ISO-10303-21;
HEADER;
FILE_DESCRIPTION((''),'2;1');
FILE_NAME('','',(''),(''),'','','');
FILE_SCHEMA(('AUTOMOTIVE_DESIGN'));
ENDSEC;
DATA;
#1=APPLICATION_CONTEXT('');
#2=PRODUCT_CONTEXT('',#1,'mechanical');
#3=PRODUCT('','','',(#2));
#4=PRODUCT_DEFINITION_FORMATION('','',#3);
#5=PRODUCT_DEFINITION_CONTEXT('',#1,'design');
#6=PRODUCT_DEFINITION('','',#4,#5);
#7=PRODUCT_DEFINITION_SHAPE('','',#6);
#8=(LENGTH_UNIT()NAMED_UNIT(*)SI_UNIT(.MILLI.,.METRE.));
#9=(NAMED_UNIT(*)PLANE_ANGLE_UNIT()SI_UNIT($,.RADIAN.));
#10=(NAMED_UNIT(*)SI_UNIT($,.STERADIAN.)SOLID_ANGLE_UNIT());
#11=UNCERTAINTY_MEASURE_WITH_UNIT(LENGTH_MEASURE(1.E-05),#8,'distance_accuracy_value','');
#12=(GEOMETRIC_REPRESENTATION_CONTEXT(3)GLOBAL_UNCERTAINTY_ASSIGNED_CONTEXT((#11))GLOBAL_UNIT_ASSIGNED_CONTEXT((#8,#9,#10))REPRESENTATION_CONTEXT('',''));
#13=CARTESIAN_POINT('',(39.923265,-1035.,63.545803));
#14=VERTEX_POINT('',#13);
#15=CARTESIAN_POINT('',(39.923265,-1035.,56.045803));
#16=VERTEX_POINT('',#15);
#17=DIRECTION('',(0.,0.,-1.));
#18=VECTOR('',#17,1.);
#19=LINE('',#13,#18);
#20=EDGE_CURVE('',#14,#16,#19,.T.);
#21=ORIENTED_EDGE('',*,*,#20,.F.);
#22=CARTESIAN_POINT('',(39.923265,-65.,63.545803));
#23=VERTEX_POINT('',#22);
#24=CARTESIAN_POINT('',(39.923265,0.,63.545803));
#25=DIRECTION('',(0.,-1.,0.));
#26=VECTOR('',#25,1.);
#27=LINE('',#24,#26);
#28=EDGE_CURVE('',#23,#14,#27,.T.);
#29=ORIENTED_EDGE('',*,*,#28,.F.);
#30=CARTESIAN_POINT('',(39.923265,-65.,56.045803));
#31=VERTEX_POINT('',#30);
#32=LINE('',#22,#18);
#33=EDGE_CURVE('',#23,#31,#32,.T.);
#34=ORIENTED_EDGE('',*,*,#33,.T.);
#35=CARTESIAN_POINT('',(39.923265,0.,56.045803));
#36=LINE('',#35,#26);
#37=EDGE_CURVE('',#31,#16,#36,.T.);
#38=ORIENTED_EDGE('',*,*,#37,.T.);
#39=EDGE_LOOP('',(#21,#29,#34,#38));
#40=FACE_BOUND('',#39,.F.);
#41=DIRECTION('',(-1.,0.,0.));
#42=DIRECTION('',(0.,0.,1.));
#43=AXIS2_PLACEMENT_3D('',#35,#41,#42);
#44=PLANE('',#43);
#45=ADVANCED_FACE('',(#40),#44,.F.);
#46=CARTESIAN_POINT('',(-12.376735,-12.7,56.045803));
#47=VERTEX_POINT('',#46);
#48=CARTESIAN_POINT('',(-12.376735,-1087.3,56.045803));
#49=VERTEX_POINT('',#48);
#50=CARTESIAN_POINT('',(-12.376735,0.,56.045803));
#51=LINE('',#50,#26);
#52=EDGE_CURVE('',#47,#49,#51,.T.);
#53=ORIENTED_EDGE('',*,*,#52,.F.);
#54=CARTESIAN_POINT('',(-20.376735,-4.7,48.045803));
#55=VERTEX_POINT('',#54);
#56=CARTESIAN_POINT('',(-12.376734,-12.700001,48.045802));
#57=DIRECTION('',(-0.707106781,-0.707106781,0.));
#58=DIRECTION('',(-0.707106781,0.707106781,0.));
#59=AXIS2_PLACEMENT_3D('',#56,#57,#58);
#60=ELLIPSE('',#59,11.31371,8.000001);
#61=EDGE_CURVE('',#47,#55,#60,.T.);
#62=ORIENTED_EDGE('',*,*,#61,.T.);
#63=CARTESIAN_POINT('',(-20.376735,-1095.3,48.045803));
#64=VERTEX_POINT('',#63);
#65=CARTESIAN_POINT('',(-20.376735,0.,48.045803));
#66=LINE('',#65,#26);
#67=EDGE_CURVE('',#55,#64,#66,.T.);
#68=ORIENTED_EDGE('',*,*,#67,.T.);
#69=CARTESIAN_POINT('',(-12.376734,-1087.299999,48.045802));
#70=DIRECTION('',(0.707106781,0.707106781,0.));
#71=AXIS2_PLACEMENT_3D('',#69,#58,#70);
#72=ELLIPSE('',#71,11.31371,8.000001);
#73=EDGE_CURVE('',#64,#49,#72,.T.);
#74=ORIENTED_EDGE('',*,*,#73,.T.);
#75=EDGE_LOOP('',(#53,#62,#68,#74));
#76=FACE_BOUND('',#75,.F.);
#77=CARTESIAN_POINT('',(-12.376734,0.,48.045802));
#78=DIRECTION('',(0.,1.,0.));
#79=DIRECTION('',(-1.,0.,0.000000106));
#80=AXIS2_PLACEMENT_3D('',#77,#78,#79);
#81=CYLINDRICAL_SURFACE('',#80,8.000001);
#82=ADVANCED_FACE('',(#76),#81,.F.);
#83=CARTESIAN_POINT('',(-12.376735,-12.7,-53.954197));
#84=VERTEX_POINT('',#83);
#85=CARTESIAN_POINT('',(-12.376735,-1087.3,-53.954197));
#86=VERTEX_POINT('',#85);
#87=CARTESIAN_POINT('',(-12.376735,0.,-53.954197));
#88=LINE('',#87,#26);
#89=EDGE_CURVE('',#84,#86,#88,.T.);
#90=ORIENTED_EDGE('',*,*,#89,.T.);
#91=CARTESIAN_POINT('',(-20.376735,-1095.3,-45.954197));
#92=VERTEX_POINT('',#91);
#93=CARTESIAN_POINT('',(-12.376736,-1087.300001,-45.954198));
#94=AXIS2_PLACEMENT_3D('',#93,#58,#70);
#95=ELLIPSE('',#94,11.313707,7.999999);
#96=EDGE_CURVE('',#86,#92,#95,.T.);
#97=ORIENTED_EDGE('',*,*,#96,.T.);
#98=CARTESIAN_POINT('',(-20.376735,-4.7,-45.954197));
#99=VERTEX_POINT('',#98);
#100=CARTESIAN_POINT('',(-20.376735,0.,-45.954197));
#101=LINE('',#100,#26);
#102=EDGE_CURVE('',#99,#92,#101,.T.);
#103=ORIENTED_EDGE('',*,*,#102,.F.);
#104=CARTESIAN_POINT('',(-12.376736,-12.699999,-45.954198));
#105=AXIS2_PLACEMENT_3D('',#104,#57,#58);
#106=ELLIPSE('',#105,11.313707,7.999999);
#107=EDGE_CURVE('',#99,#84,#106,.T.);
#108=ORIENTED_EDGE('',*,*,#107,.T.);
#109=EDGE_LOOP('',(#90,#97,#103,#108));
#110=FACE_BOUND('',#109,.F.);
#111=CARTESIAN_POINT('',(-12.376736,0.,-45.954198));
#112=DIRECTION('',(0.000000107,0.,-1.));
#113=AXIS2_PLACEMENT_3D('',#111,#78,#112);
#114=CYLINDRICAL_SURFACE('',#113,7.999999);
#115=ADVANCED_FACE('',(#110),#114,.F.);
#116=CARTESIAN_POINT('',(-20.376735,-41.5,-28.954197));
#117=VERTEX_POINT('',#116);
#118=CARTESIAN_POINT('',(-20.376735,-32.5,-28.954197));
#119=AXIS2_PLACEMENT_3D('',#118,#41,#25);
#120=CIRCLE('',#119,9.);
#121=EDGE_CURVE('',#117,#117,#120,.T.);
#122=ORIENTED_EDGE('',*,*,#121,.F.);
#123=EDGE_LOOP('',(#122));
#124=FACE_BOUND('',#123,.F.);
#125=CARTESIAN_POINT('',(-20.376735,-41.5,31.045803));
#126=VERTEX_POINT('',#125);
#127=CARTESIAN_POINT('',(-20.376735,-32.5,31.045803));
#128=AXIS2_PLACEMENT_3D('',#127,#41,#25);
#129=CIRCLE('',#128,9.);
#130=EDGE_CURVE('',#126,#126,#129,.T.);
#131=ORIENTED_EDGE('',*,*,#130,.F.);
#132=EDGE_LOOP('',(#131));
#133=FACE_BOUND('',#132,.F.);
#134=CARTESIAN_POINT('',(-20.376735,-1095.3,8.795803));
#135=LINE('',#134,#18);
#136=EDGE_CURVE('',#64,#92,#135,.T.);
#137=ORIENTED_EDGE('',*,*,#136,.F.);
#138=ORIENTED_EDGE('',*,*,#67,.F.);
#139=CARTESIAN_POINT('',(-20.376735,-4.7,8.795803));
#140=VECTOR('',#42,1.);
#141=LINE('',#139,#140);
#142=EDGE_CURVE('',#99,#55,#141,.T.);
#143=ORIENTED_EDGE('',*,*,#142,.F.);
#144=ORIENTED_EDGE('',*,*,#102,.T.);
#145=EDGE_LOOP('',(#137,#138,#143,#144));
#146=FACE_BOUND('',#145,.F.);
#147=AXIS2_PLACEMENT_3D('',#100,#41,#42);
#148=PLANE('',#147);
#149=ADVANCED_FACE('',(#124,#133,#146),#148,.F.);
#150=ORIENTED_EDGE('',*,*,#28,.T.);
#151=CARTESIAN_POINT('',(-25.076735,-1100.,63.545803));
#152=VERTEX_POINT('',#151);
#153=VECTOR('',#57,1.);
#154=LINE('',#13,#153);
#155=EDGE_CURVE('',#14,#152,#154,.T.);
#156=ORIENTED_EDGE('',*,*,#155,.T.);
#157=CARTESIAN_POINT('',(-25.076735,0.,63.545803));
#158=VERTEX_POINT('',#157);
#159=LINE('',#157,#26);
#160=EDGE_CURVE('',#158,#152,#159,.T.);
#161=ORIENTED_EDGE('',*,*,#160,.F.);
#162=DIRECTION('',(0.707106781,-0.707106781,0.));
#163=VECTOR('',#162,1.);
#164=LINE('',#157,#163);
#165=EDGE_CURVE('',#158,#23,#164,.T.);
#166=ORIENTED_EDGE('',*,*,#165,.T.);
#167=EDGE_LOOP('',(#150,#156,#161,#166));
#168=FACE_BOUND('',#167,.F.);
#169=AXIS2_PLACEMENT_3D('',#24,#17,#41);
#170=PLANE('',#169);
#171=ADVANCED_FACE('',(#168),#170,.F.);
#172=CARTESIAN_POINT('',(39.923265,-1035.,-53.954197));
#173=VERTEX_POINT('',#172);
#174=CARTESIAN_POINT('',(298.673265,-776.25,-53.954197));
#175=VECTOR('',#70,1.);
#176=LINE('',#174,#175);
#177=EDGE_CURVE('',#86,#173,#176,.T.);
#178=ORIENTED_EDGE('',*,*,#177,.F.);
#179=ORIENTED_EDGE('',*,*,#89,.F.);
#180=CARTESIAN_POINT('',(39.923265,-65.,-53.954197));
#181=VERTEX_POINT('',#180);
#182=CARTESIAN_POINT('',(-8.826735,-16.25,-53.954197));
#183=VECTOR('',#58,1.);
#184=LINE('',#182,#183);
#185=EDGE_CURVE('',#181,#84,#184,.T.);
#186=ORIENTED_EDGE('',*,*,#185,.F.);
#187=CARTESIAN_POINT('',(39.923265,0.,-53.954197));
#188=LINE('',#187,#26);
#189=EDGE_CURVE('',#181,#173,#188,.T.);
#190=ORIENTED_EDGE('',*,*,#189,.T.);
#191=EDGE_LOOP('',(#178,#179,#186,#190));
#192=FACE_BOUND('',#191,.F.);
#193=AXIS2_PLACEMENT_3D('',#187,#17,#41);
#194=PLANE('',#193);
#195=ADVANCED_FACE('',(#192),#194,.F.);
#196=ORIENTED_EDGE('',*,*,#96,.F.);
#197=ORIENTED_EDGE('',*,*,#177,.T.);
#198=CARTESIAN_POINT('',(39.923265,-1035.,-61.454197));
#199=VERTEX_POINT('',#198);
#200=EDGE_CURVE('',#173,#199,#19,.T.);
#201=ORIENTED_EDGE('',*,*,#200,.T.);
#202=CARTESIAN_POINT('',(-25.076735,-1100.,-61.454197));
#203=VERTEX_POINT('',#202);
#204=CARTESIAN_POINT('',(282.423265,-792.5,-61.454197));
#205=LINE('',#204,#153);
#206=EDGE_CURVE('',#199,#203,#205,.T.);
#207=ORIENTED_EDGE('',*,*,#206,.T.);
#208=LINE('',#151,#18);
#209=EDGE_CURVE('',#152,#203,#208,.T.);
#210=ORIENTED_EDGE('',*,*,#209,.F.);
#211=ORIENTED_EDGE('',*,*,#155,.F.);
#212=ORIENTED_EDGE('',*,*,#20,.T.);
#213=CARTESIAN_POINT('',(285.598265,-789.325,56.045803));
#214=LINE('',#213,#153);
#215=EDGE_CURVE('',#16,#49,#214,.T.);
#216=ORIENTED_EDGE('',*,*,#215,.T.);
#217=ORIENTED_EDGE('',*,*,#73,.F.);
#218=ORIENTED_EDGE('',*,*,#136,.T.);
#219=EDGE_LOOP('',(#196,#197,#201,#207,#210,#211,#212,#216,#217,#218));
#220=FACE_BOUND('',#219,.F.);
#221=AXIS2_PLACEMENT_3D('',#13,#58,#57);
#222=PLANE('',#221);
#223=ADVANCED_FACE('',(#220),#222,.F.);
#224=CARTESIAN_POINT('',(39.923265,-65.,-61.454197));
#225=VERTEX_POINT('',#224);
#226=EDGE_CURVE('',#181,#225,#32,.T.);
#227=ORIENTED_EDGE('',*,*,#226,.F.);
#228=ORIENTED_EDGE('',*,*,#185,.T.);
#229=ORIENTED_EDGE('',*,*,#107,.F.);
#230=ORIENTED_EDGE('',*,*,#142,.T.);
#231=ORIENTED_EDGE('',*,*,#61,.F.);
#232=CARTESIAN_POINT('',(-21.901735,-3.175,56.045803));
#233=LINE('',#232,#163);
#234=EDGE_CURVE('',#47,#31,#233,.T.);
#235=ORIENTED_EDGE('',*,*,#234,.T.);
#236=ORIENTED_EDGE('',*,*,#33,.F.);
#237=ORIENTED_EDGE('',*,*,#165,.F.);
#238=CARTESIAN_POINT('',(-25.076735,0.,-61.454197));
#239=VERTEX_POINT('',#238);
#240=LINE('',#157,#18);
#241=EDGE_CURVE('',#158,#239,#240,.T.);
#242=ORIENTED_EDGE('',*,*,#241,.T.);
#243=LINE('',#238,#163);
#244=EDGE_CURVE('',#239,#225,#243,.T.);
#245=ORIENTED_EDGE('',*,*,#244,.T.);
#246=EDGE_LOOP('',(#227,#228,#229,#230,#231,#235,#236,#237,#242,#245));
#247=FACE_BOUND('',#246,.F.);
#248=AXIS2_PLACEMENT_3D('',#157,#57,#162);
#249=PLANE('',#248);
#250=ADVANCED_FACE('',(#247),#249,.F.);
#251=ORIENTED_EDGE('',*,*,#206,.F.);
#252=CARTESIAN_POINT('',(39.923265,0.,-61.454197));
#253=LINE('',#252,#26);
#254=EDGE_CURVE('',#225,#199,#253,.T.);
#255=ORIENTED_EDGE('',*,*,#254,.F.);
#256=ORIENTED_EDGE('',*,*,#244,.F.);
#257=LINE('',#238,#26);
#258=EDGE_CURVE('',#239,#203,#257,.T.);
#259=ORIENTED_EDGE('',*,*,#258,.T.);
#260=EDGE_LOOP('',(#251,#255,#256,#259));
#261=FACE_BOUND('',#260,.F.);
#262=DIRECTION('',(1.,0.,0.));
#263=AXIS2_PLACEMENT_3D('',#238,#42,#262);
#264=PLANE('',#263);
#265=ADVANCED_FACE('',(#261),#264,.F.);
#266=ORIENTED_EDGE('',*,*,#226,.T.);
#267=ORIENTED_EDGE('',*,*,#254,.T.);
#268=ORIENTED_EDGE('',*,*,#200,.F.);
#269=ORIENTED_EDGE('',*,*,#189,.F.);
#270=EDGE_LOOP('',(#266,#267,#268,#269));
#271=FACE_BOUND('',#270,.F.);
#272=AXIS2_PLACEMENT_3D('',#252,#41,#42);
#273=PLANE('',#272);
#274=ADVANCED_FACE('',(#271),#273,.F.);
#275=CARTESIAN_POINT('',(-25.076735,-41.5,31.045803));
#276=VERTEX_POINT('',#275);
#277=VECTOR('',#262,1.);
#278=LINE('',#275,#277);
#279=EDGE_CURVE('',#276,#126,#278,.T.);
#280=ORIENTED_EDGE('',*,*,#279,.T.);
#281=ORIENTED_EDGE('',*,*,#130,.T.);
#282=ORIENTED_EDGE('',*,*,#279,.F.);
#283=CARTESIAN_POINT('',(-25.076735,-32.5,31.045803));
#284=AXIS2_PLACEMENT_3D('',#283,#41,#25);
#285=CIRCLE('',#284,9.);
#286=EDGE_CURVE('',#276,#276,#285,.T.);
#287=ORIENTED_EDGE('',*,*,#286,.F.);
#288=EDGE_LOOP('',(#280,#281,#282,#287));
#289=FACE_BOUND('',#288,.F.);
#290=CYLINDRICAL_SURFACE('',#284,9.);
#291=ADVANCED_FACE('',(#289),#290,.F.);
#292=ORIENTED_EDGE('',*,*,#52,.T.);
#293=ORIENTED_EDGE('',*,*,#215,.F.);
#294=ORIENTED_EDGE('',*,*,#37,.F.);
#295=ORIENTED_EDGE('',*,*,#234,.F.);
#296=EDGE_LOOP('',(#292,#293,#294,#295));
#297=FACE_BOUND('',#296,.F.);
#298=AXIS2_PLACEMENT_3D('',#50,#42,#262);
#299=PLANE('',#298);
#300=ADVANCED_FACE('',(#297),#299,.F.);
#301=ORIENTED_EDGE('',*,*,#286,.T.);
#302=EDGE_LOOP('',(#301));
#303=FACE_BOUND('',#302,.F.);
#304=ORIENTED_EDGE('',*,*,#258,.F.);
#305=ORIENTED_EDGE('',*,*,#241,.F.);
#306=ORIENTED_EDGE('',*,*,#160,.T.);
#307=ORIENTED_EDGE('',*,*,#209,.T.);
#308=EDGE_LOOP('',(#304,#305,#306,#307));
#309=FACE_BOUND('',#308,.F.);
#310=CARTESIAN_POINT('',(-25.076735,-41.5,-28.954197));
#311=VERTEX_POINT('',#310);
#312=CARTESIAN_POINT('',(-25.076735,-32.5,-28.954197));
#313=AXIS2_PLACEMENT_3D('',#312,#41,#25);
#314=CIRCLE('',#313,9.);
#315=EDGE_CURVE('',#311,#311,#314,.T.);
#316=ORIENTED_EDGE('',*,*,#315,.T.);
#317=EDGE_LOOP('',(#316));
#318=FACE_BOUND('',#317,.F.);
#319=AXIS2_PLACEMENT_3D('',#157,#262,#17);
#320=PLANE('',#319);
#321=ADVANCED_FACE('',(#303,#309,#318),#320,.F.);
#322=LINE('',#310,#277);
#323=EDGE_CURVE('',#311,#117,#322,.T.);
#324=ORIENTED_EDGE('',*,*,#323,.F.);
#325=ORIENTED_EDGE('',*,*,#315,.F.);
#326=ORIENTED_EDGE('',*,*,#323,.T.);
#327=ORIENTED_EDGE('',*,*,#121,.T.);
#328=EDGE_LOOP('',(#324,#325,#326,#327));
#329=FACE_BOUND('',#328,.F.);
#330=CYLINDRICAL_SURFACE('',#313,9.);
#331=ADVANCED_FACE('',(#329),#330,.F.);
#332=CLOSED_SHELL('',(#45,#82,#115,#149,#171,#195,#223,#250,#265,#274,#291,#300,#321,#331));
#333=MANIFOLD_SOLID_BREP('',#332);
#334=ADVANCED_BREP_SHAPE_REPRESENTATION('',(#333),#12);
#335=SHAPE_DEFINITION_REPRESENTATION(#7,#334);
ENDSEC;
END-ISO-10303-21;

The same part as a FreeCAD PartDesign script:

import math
import FreeCAD as App
import Part
import Sketcher

V = App.Vector
Q = App.Units.Quantity


def add_polygon(sketch, points):
    """Adds a closed chain of lines whose ends are joined by coincident constraints."""
    first, n = sketch.GeometryCount, len(points)
    for a, b in zip(points, points[1:] + points[:1]):
        sketch.addGeometry(Part.LineSegment(App.Vector(*a, 0), App.Vector(*b, 0)), False)
    for i in range(n):
        sketch.addConstraint(Sketcher.Constraint("Coincident", first + i, 2, first + (i + 1) % n, 1))

doc = App.newDocument("Part")
body = doc.addObject("PartDesign::Body", "Body")

# Sketch on XZ plane
sketch1 = doc.addObject("Sketcher::SketchObject", "Sketch")
body.addObject(sketch1)
sketch1.AttachmentSupport = (doc.XZ_Plane, [""])
sketch1.MapMode = "FlatFace"
sketch1.addGeometry(Part.LineSegment(V(-25.076735, 63.545803, 0), V(-25.076735, -61.454197, 0)), False)
sketch1.addGeometry(Part.LineSegment(V(-25.076735, -61.454197, 0), V(39.923265, -61.454197, 0)), False)
sketch1.addGeometry(Part.LineSegment(V(39.923265, -61.454197, 0), V(39.923265, -53.954197, 0)), False)
sketch1.addGeometry(Part.LineSegment(V(39.923265, -53.954197, 0), V(-12.376735, -53.954197, 0)), False)
sketch1.addGeometry(Part.ArcOfCircle(Part.Circle(V(-12.376736, -45.954198, 0), V(0, 0, 1), 7.999999), math.radians(179.999994), math.radians(270.000006)), False)
sketch1.addGeometry(Part.LineSegment(V(-20.376735, -45.954197, 0), V(-20.376735, 48.045803, 0)), False)
sketch1.addGeometry(Part.ArcOfCircle(Part.Circle(V(-12.376734, 48.045802, 0), V(0, 0, 1), 8.000001), math.radians(90.000006), math.radians(179.999994)), False)
sketch1.addGeometry(Part.LineSegment(V(-12.376735, 56.045803, 0), V(39.923265, 56.045803, 0)), False)
sketch1.addGeometry(Part.LineSegment(V(39.923265, 56.045803, 0), V(39.923265, 63.545803, 0)), False)
sketch1.addGeometry(Part.LineSegment(V(39.923265, 63.545803, 0), V(-25.076735, 63.545803, 0)), False)
sketch1.addConstraint(Sketcher.Constraint("Coincident", 0, 2, 1, 1))
sketch1.addConstraint(Sketcher.Constraint("Coincident", 1, 2, 2, 1))
sketch1.addConstraint(Sketcher.Constraint("Coincident", 2, 2, 3, 1))
sketch1.addConstraint(Sketcher.Constraint("Tangent", 3, 2, 4, 2))
sketch1.addConstraint(Sketcher.Constraint("Tangent", 4, 1, 5, 1))
sketch1.addConstraint(Sketcher.Constraint("Tangent", 5, 2, 6, 2))
sketch1.addConstraint(Sketcher.Constraint("Tangent", 6, 1, 7, 1))
sketch1.addConstraint(Sketcher.Constraint("Coincident", 7, 2, 8, 1))
sketch1.addConstraint(Sketcher.Constraint("Coincident", 8, 2, 9, 1))
sketch1.addConstraint(Sketcher.Constraint("Coincident", 9, 2, 0, 1))
sketch1.addConstraint(Sketcher.Constraint("Vertical", 0))
sketch1.addConstraint(Sketcher.Constraint("Horizontal", 1))
sketch1.addConstraint(Sketcher.Constraint("Vertical", 2))
sketch1.addConstraint(Sketcher.Constraint("Horizontal", 3))
sketch1.addConstraint(Sketcher.Constraint("Vertical", 5))
sketch1.addConstraint(Sketcher.Constraint("Horizontal", 7))
sketch1.addConstraint(Sketcher.Constraint("Vertical", 8))
sketch1.addConstraint(Sketcher.Constraint("Horizontal", 9))
sketch1.addConstraint(Sketcher.Constraint("Equal", 4, 6))
sketch1.addConstraint(Sketcher.Constraint("Vertical", 2, 2, 7, 2))
sketch1.addConstraint(Sketcher.Constraint("Equal", 2, 8))
sketch1.addConstraint(Sketcher.Constraint("Radius", 4, Q("7.999999 mm")))
sketch1.addConstraint(Sketcher.Constraint("DistanceX", 1, 1, 1, 2, Q("65 mm")))
sketch1.addConstraint(Sketcher.Constraint("DistanceY", 0, 2, 0, 1, Q("125 mm")))
sketch1.addConstraint(Sketcher.Constraint("DistanceY", 5, 1, 5, 2, Q("94 mm")))
sketch1.addConstraint(Sketcher.Constraint("DistanceX", 3, 2, 3, 1, Q("52.3 mm")))
sketch1.addConstraint(Sketcher.Constraint("DistanceX", 4, 3, -1, 1, Q("12.376736 mm")))
sketch1.addConstraint(Sketcher.Constraint("DistanceY", 4, 3, -1, 1, Q("45.954198 mm")))
pad1 = doc.addObject("PartDesign::Pad", "Pad")
body.addObject(pad1)
pad1.Profile = sketch1
pad1.Length = 1100

# Sketch on XY plane
sketch2 = doc.addObject("Sketcher::SketchObject", "Sketch001")
body.addObject(sketch2)
sketch2.AttachmentSupport = (doc.XY_Plane, [""])
sketch2.MapMode = "FlatFace"
sketch2.AttachmentOffset = App.Placement(V(0, 0, 63.545803), App.Rotation())
add_polygon(sketch2, [(-25.076735, 0), (39.923265, -65), (39.923265, 0)])  # lines 0-2
add_polygon(sketch2, [(-25.076735, -1100), (39.923265, -1100), (39.923265, -1035)])  # lines 3-5
sketch2.addConstraint(Sketcher.Constraint("Vertical", 1))
sketch2.addConstraint(Sketcher.Constraint("Horizontal", 2))
sketch2.addConstraint(Sketcher.Constraint("Horizontal", 3))
sketch2.addConstraint(Sketcher.Constraint("Vertical", 4))
sketch2.addConstraint(Sketcher.Constraint("PointOnObject", 1, 2, -1))
sketch2.addConstraint(Sketcher.Constraint("Perpendicular", 0, 5))
sketch2.addConstraint(Sketcher.Constraint("Vertical", 1, 2, 3, 2))
sketch2.addConstraint(Sketcher.Constraint("Vertical", 2, 2, 5, 2))
sketch2.addConstraint(Sketcher.Constraint("Equal", 3, 1))
sketch2.addConstraint(Sketcher.Constraint("DistanceX", 2, 2, 2, 1, Q("65 mm")))
sketch2.addConstraint(Sketcher.Constraint("DistanceY", 3, 2, -1, 1, Q("1100 mm")))
sketch2.addConstraint(Sketcher.Constraint("DistanceX", -1, 1, 0, 2, Q("39.923265 mm")))
pocket1 = doc.addObject("PartDesign::Pocket", "Pocket")
body.addObject(pocket1)
pocket1.Profile = sketch2
pocket1.Type = "ThroughAll"

# Sketch on YZ plane
sketch3 = doc.addObject("Sketcher::SketchObject", "Sketch002")
body.addObject(sketch3)
sketch3.AttachmentSupport = (doc.YZ_Plane, [""])
sketch3.MapMode = "FlatFace"
sketch3.AttachmentOffset = App.Placement(V(0, 0, -25.076735), App.Rotation())
sketch3.addGeometry(Part.Circle(V(-32.5, 31.045803, 0), V(0, 0, 1), 9), False)
sketch3.addGeometry(Part.Circle(V(-32.5, -28.954197, 0), V(0, 0, 1), 9), False)
sketch3.addConstraint(Sketcher.Constraint("Equal", 0, 1))
sketch3.addConstraint(Sketcher.Constraint("Vertical", 0, 3, 1, 3))
sketch3.addConstraint(Sketcher.Constraint("Diameter", 0, Q("18 mm")))
sketch3.addConstraint(Sketcher.Constraint("DistanceY", 1, 3, 0, 3, Q("60 mm")))
sketch3.addConstraint(Sketcher.Constraint("DistanceX", 0, 3, -1, 1, Q("32.5 mm")))
sketch3.addConstraint(Sketcher.Constraint("DistanceY", -1, 1, 0, 3, Q("31.045803 mm")))
pocket2 = doc.addObject("PartDesign::Pocket", "Pocket001")
body.addObject(pocket2)
pocket2.Profile = sketch3
pocket2.Type = "ThroughAll"
pocket2.Reversed = True

doc.recompute()
